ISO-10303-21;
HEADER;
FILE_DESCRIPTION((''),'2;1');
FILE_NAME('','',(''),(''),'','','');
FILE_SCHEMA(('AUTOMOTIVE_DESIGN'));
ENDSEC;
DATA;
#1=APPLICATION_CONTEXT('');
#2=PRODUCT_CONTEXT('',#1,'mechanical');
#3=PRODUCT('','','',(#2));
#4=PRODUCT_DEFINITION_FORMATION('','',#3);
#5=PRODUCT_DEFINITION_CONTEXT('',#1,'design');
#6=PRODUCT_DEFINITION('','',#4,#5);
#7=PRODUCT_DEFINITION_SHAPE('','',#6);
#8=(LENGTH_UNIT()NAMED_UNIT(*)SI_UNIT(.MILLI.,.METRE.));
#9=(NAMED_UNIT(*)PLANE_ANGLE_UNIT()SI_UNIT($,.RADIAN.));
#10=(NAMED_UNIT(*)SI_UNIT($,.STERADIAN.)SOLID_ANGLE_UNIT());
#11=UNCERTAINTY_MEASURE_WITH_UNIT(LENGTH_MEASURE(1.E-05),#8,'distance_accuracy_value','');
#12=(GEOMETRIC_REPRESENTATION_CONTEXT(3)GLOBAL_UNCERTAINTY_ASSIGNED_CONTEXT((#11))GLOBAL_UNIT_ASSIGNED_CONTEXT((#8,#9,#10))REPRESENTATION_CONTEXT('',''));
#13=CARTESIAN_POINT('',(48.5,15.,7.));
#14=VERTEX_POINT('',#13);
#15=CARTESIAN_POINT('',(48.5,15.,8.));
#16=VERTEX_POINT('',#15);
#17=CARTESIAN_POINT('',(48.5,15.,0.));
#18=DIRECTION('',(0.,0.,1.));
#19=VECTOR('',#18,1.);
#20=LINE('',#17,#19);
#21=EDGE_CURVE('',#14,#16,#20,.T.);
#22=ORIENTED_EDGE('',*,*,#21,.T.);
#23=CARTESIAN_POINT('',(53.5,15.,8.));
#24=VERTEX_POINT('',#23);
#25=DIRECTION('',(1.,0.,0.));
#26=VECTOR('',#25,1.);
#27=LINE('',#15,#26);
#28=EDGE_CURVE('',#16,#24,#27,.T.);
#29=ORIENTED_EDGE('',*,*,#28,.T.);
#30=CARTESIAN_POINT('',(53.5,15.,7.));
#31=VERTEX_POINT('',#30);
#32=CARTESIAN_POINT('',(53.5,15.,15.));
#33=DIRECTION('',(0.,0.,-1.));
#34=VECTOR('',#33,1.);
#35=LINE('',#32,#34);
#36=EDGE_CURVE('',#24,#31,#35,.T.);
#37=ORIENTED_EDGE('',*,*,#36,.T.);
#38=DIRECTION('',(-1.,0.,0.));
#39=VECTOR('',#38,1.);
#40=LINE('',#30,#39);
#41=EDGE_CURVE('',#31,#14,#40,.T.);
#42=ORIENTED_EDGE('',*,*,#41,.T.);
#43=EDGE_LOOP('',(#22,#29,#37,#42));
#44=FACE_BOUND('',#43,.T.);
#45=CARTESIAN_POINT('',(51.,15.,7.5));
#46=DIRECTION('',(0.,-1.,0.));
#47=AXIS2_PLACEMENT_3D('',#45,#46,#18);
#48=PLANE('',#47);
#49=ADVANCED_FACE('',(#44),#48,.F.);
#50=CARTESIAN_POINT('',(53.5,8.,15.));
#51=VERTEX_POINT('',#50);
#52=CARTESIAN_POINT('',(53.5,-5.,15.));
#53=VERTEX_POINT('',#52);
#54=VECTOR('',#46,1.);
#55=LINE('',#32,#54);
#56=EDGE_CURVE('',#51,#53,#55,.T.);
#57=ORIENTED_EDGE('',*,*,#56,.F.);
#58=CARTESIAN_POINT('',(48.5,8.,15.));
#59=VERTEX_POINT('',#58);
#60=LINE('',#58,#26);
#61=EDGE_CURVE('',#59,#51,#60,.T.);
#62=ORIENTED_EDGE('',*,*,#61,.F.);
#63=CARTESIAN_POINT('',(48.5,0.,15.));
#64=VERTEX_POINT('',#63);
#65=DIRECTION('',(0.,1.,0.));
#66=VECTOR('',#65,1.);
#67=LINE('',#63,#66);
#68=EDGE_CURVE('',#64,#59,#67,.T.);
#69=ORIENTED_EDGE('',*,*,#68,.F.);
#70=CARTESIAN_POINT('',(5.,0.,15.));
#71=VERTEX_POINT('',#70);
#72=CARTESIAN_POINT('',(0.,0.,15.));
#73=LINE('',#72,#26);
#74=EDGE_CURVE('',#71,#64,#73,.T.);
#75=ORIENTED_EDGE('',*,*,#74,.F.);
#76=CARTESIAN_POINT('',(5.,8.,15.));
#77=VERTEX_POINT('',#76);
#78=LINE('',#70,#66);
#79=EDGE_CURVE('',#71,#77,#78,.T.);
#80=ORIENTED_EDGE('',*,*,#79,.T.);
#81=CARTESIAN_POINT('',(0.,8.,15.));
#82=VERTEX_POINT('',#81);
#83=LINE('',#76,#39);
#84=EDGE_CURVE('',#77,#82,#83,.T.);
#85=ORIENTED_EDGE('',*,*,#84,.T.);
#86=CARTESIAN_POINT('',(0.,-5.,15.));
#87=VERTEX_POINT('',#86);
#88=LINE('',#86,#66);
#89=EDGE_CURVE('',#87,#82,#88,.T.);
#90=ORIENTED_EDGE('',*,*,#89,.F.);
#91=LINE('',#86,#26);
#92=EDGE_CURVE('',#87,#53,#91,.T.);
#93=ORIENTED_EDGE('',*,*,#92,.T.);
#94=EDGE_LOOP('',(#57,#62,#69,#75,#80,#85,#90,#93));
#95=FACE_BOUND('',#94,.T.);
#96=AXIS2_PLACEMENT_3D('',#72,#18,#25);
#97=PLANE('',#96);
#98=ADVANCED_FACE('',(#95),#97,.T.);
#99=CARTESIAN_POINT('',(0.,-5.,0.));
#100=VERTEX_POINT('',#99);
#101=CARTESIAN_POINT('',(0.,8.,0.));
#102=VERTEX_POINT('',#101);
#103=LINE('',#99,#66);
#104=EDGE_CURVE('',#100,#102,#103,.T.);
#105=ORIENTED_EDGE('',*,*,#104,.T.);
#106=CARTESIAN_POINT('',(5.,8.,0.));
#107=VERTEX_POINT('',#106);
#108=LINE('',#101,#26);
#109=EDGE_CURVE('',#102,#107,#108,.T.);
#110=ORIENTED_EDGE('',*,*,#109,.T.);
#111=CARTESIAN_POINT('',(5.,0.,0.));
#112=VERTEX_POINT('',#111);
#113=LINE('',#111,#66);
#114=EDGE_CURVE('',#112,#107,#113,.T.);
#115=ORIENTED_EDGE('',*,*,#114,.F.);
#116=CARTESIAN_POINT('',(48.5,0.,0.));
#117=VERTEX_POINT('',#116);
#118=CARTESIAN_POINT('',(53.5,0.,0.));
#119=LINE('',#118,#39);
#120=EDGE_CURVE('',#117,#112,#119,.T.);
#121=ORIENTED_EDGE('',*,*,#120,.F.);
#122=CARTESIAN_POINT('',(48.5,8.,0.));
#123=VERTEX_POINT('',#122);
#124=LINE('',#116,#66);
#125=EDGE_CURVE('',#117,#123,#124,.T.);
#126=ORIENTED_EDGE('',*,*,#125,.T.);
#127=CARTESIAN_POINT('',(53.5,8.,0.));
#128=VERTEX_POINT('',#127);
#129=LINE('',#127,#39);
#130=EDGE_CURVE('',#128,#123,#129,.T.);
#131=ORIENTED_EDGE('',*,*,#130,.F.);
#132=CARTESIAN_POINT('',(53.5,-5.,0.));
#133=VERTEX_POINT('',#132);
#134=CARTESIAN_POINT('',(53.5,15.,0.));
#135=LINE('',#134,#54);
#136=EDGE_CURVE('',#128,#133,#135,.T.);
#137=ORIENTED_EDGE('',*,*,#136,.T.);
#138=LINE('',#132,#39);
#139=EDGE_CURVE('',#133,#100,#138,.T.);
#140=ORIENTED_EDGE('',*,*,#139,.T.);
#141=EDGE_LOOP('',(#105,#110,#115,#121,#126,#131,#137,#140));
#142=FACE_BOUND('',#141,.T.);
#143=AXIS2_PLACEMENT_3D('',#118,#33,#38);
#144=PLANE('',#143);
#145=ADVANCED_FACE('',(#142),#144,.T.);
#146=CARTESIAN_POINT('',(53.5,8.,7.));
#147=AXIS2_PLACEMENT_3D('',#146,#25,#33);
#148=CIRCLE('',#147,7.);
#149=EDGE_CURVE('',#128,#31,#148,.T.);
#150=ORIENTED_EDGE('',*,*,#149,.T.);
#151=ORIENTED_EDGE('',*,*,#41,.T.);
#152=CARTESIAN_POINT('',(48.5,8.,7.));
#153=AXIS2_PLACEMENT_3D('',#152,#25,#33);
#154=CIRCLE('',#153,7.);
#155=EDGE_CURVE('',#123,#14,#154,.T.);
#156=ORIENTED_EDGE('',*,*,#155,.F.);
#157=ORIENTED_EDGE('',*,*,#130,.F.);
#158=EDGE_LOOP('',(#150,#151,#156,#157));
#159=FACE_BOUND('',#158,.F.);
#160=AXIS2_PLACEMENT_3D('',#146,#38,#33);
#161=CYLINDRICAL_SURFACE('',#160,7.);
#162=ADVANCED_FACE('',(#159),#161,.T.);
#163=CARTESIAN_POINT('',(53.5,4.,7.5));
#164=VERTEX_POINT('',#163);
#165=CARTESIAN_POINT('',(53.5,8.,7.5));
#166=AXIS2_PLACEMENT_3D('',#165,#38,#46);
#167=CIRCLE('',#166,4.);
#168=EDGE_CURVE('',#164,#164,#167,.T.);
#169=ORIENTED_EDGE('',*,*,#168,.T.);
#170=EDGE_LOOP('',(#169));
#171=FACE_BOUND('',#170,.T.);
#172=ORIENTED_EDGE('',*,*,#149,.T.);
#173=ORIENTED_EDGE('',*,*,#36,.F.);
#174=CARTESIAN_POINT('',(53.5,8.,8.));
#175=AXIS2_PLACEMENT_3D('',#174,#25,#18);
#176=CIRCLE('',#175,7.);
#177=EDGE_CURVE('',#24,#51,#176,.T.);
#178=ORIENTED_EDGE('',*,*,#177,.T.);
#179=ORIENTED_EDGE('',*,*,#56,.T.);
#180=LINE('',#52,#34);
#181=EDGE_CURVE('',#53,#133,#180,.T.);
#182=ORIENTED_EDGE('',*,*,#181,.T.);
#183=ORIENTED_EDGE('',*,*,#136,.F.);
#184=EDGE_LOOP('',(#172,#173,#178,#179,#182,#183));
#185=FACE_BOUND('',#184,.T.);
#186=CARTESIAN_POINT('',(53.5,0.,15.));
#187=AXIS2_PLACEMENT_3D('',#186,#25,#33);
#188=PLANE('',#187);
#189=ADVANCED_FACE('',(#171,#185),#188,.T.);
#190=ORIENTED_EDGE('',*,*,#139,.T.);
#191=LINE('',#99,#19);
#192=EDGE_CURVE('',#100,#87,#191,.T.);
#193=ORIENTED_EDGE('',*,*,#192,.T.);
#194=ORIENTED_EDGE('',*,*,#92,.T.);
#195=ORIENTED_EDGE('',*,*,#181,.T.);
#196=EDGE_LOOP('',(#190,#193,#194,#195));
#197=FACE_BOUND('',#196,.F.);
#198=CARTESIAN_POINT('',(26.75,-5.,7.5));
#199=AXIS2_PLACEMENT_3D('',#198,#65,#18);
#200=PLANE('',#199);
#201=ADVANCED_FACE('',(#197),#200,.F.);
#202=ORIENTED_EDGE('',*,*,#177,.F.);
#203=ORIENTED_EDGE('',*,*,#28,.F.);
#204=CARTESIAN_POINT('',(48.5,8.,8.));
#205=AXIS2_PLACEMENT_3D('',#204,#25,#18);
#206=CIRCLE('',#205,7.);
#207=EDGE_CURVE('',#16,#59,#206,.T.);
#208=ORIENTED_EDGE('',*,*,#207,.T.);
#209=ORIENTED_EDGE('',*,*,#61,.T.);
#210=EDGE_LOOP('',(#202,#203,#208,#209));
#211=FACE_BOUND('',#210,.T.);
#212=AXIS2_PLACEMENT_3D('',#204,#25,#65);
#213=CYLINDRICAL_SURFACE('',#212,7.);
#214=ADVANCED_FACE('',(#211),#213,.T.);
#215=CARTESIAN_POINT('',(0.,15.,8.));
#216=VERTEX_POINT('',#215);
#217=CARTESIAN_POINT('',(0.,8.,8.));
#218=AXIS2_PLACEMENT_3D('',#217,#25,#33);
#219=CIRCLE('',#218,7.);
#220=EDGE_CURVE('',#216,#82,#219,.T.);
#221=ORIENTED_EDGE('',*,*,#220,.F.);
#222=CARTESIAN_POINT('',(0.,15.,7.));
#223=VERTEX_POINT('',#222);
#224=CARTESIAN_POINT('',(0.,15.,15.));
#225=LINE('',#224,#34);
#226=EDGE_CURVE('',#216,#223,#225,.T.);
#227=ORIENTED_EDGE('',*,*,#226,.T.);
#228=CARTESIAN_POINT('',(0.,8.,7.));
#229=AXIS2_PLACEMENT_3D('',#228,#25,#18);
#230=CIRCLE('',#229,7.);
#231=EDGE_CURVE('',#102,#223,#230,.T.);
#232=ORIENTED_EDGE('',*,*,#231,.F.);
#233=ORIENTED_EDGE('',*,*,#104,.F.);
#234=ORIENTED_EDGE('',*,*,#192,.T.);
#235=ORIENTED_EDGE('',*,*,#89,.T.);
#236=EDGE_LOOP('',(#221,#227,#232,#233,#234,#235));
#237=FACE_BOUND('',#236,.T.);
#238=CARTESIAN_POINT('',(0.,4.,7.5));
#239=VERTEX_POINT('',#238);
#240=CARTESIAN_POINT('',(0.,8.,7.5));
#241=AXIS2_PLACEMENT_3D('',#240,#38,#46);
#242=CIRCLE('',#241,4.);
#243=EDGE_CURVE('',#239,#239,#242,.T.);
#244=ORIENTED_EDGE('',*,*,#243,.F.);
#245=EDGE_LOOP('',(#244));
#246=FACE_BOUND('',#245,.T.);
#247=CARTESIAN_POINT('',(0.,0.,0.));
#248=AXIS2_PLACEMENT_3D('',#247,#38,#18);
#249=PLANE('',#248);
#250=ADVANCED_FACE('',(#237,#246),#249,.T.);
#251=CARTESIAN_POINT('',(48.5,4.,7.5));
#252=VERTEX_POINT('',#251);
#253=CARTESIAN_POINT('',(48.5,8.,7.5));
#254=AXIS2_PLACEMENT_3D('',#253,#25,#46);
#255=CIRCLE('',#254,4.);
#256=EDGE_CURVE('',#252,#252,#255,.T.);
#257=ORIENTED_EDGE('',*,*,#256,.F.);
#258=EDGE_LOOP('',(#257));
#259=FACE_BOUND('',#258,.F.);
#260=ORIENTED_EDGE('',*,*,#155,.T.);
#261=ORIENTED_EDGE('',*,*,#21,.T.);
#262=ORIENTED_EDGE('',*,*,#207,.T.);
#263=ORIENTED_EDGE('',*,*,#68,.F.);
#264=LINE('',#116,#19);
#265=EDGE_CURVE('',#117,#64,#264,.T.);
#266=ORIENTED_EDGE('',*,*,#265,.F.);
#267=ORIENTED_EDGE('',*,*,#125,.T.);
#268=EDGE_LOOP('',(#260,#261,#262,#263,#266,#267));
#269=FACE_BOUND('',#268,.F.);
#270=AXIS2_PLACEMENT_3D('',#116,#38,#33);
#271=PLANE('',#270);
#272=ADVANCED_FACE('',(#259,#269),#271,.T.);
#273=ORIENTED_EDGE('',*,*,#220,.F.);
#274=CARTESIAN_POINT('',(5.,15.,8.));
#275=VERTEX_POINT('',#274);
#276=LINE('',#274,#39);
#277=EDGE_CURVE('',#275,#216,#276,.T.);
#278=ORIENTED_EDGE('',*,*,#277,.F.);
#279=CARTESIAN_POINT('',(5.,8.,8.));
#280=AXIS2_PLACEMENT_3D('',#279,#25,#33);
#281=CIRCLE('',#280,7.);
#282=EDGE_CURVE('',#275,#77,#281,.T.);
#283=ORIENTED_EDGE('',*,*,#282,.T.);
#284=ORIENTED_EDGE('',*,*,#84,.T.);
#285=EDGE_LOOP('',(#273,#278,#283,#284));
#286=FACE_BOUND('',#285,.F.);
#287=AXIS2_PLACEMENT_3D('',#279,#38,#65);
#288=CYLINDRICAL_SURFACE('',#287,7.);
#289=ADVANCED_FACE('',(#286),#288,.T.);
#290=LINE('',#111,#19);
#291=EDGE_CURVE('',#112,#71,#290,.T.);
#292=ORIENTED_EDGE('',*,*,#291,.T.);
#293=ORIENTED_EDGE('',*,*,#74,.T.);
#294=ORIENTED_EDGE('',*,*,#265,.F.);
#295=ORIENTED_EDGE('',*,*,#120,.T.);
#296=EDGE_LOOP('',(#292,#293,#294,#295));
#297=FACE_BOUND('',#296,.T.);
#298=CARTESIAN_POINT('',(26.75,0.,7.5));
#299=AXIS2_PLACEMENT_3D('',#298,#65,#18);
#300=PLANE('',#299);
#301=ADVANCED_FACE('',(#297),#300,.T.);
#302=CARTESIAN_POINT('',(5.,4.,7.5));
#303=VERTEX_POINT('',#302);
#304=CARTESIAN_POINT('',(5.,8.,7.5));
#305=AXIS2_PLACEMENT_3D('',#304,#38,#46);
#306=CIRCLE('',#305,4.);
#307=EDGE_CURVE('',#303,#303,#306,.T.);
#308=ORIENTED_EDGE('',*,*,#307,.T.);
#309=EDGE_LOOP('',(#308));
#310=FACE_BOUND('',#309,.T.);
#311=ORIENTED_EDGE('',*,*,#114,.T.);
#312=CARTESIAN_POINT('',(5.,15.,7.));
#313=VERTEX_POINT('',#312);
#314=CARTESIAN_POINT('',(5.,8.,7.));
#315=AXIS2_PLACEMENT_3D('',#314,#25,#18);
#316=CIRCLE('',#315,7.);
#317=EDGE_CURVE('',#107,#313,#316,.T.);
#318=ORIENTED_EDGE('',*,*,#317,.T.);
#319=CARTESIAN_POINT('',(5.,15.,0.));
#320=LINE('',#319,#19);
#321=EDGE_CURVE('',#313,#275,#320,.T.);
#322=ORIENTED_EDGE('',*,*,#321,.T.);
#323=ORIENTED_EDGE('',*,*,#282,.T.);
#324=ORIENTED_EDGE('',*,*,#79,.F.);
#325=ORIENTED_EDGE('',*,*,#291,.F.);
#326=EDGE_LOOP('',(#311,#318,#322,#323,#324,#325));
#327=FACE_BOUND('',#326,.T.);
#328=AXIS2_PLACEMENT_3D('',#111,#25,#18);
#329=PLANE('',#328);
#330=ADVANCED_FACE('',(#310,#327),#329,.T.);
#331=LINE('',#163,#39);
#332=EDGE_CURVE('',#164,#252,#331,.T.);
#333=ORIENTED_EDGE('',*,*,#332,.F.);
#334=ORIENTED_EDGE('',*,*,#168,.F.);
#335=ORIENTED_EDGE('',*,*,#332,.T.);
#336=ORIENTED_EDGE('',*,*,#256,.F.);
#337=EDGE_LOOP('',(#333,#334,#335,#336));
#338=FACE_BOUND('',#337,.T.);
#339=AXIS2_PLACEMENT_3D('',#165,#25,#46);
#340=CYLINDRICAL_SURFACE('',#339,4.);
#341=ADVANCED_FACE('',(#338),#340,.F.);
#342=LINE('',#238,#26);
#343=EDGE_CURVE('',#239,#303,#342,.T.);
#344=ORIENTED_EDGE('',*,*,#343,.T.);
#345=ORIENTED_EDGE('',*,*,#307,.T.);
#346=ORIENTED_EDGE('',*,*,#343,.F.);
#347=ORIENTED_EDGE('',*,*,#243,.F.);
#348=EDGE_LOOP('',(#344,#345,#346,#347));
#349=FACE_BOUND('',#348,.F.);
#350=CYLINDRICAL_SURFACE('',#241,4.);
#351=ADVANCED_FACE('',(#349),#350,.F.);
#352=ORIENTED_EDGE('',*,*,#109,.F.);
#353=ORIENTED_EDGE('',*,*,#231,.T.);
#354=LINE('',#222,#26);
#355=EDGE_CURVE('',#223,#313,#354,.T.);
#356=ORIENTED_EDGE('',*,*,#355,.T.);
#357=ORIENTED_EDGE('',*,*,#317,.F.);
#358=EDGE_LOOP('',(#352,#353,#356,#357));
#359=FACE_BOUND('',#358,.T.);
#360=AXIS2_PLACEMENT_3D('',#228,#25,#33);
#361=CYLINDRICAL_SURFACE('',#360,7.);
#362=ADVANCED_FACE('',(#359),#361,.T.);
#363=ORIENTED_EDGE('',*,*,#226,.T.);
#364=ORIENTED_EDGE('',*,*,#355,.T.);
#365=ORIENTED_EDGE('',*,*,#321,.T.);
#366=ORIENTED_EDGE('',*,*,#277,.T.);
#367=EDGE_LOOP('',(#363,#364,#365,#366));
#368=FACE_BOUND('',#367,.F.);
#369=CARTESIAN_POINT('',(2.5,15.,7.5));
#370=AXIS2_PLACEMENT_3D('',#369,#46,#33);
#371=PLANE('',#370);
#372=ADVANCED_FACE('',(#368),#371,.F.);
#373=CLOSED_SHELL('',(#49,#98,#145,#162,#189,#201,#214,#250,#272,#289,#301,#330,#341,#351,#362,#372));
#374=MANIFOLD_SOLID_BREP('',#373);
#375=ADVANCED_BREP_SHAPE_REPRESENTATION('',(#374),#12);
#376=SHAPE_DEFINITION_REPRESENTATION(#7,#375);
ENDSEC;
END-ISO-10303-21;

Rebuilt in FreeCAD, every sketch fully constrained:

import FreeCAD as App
import Part
import Sketcher


def edges_at(feature, points):
    """Names of the edges that pass closest to the given points."""
    edges = feature.Shape.Edges
    near = lambda p: min(range(len(edges)), key=lambda i: edges[i].distToShape(Part.Vertex(*p))[0])
    return sorted({f"Edge{near(p) + 1}" for p in points})


def add_polygon(sketch, points):
    """Adds a closed chain of lines whose ends are joined by coincident constraints."""
    first, n = sketch.GeometryCount, len(points)
    for a, b in zip(points, points[1:] + points[:1]):
        sketch.addGeometry(Part.LineSegment(App.Vector(*a, 0), App.Vector(*b, 0)), False)
    for i in range(n):
        sketch.addConstraint(Sketcher.Constraint("Coincident", first + i, 2, first + (i + 1) % n, 1))

doc = App.newDocument("Part")
body = doc.addObject("PartDesign::Body", "Body")

# Sketch on XZ plane
sketch1 = doc.addObject("Sketcher::SketchObject", "Sketch")
body.addObject(sketch1)
sketch1.AttachmentSupport = (doc.XZ_Plane, [""])
sketch1.MapMode = "FlatFace"
add_polygon(sketch1, [(0, 0), (53.5, 0), (53.5, 15), (0, 15)])  # lines 0-3
sketch1.addConstraint(Sketcher.Constraint("Horizontal", 0))
sketch1.addConstraint(Sketcher.Constraint("Vertical", 1))
sketch1.addConstraint(Sketcher.Constraint("Horizontal", 2))
sketch1.addConstraint(Sketcher.Constraint("Vertical", 3))
sketch1.addConstraint(Sketcher.Constraint("Coincident", 3, 2, -1, 1))
sketch1.addConstraint(Sketcher.Constraint("DistanceY", 1, 1, 1, 2, 15.0))
sketch1.addConstraint(Sketcher.Constraint("DistanceX", 0, 1, 0, 2, 53.5))
pad1 = doc.addObject("PartDesign::Pad", "Pad")
body.addObject(pad1)
pad1.Profile = sketch1
pad1.Length = 5

# Sketch on XZ plane
sketch2 = doc.addObject("Sketcher::SketchObject", "Sketch001")
body.addObject(sketch2)
sketch2.AttachmentSupport = (doc.XZ_Plane, [""])
sketch2.MapMode = "FlatFace"
add_polygon(sketch2, [(5, 15), (5, 0), (0, 0), (0, 15)])  # lines 0-3
sketch2.addConstraint(Sketcher.Constraint("Vertical", 0))
sketch2.addConstraint(Sketcher.Constraint("Horizontal", 1))
sketch2.addConstraint(Sketcher.Constraint("Vertical", 2))
sketch2.addConstraint(Sketcher.Constraint("Horizontal", 3))
sketch2.addConstraint(Sketcher.Constraint("Coincident", 1, 2, -1, 1))
sketch2.addConstraint(Sketcher.Constraint("DistanceX", 1, 2, 1, 1, 5.0))
sketch2.addConstraint(Sketcher.Constraint("DistanceY", 0, 2, 0, 1, 15.0))
pad2 = doc.addObject("PartDesign::Pad", "Pad001")
body.addObject(pad2)
pad2.Profile = sketch2
pad2.Length = 15
pad2.Reversed = True

# Sketch on YZ plane
sketch3 = doc.addObject("Sketcher::SketchObject", "Sketch002")
body.addObject(sketch3)
sketch3.AttachmentSupport = (doc.YZ_Plane, [""])
sketch3.MapMode = "FlatFace"
sketch3.addGeometry(Part.Circle(App.Vector(8, 7.5, 0), App.Vector(0, 0, 1), 4), False)
sketch3.addConstraint(Sketcher.Constraint("Diameter", 0, 8.0))
sketch3.addConstraint(Sketcher.Constraint("DistanceX", -1, 1, 0, 3, 8.0))
sketch3.addConstraint(Sketcher.Constraint("DistanceY", -1, 1, 0, 3, 7.5))
pocket1 = doc.addObject("PartDesign::Pocket", "Pocket")
body.addObject(pocket1)
pocket1.Profile = sketch3
pocket1.Type = "ThroughAll"
pocket1.Reversed = True
doc.recompute()

fillet = doc.addObject("PartDesign::Fillet", "Fillet")
body.addObject(fillet)
fillet.Base = (pocket1, edges_at(pocket1, [(2.5, 15, 15), (2.5, 15, 0)]))
fillet.Radius = 7
doc.recompute()

datumplane = doc.addObject("PartDesign::Plane", "DatumPlane")
body.addObject(datumplane)
datumplane.AttachmentSupport = (doc.YZ_Plane, [""])
datumplane.MapMode = "FlatFace"
datumplane.AttachmentOffset = App.Placement(App.Vector(0, 0, 26.75), App.Rotation())
mirrored = doc.addObject("PartDesign::Mirrored", "Mirrored")
body.addObject(mirrored)
mirrored.Originals = [pad2, pocket1]
mirrored.MirrorPlane = (datumplane, [""])
body.Tip = mirrored
doc.recompute()

fillet2 = doc.addObject("PartDesign::Fillet", "Fillet001")
body.addObject(fillet2)
fillet2.Base = (mirrored, edges_at(mirrored, [(51, 15, 15), (51, 15, 0)]))
fillet2.Radius = 7

doc.recompute()
